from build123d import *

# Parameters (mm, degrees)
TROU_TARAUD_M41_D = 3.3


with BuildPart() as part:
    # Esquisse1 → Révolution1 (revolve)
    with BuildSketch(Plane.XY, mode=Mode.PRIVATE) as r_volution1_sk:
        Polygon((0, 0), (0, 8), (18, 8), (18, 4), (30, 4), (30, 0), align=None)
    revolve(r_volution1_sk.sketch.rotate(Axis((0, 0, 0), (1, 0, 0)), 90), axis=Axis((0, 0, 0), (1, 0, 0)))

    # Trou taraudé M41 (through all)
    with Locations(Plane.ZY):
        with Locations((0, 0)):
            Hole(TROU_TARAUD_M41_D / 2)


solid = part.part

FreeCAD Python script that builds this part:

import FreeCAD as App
import Part
import Sketcher
Q = App.Units.Quantity


def add_polygon(sketch, points):
    """Adds a closed chain of lines whose ends are joined by coincident constraints."""
    first, n = sketch.GeometryCount, len(points)
    for a, b in zip(points, points[1:] + points[:1]):
        sketch.addGeometry(Part.LineSegment(App.Vector(*a, 0), App.Vector(*b, 0)), False)
    for i in range(n):
        sketch.addConstraint(Sketcher.Constraint("Coincident", first + i, 2, first + (i + 1) % n, 1))

doc = App.newDocument("Part")
body = doc.addObject("PartDesign::Body", "Body")

# Sketch on XY plane
sketch1 = body.newObject("Sketcher::SketchObject", "Sketch")
sketch1.AttachmentSupport = (doc.getObject("XY_Plane"), [""])
sketch1.MapMode = "FlatFace"
add_polygon(sketch1, [(0, 8), (0, 0), (30, 0), (30, 4), (18, 4), (18, 8)])  # lines 0-5
sketch1.addConstraint([
    Sketcher.Constraint("Vertical", 0),
    Sketcher.Constraint("Horizontal", 1),
    Sketcher.Constraint("Vertical", 2),
    Sketcher.Constraint("Horizontal", 3),
    Sketcher.Constraint("Vertical", 4),
    Sketcher.Constraint("Horizontal", 5),
    Sketcher.Constraint("Coincident", 0, 2, -1, 1),
    Sketcher.Constraint("Equal", 2, 4),
    Sketcher.Constraint("DistanceX", 1, 1, 1, 2, Q("30 mm")),
    Sketcher.Constraint("DistanceX", 3, 2, 3, 1, Q("12 mm")),
    Sketcher.Constraint("DistanceY", 0, 2, 0, 1, Q("8 mm")),
])
revolution = body.newObject("PartDesign::Revolution", "Revolution")
revolution.Profile = sketch1
revolution.ReferenceAxis = (sketch1, ["H_Axis"])
revolution.Angle = 360

# Sketch on YZ plane
sketch2 = body.newObject("Sketcher::SketchObject", "Sketch001")
sketch2.AttachmentSupport = (doc.getObject("YZ_Plane"), [""])
sketch2.MapMode = "FlatFace"
sketch2.addGeometry(Part.Circle(App.Vector(0, 0, 0), App.Vector(0, 0, 1), 1.6), False)
sketch2.addConstraint([
    Sketcher.Constraint("Coincident", 0, 3, -1, 1),
    Sketcher.Constraint("Diameter", 0, Q("3.3 mm")),
])
doc.recompute()
hole = body.newObject("PartDesign::Hole", "Hole")
hole.Profile = sketch2
hole.ThreadType = "None"
hole.Diameter = 3.3
hole.DepthType = "ThroughAll"
hole.Reversed = True

doc.recompute()
